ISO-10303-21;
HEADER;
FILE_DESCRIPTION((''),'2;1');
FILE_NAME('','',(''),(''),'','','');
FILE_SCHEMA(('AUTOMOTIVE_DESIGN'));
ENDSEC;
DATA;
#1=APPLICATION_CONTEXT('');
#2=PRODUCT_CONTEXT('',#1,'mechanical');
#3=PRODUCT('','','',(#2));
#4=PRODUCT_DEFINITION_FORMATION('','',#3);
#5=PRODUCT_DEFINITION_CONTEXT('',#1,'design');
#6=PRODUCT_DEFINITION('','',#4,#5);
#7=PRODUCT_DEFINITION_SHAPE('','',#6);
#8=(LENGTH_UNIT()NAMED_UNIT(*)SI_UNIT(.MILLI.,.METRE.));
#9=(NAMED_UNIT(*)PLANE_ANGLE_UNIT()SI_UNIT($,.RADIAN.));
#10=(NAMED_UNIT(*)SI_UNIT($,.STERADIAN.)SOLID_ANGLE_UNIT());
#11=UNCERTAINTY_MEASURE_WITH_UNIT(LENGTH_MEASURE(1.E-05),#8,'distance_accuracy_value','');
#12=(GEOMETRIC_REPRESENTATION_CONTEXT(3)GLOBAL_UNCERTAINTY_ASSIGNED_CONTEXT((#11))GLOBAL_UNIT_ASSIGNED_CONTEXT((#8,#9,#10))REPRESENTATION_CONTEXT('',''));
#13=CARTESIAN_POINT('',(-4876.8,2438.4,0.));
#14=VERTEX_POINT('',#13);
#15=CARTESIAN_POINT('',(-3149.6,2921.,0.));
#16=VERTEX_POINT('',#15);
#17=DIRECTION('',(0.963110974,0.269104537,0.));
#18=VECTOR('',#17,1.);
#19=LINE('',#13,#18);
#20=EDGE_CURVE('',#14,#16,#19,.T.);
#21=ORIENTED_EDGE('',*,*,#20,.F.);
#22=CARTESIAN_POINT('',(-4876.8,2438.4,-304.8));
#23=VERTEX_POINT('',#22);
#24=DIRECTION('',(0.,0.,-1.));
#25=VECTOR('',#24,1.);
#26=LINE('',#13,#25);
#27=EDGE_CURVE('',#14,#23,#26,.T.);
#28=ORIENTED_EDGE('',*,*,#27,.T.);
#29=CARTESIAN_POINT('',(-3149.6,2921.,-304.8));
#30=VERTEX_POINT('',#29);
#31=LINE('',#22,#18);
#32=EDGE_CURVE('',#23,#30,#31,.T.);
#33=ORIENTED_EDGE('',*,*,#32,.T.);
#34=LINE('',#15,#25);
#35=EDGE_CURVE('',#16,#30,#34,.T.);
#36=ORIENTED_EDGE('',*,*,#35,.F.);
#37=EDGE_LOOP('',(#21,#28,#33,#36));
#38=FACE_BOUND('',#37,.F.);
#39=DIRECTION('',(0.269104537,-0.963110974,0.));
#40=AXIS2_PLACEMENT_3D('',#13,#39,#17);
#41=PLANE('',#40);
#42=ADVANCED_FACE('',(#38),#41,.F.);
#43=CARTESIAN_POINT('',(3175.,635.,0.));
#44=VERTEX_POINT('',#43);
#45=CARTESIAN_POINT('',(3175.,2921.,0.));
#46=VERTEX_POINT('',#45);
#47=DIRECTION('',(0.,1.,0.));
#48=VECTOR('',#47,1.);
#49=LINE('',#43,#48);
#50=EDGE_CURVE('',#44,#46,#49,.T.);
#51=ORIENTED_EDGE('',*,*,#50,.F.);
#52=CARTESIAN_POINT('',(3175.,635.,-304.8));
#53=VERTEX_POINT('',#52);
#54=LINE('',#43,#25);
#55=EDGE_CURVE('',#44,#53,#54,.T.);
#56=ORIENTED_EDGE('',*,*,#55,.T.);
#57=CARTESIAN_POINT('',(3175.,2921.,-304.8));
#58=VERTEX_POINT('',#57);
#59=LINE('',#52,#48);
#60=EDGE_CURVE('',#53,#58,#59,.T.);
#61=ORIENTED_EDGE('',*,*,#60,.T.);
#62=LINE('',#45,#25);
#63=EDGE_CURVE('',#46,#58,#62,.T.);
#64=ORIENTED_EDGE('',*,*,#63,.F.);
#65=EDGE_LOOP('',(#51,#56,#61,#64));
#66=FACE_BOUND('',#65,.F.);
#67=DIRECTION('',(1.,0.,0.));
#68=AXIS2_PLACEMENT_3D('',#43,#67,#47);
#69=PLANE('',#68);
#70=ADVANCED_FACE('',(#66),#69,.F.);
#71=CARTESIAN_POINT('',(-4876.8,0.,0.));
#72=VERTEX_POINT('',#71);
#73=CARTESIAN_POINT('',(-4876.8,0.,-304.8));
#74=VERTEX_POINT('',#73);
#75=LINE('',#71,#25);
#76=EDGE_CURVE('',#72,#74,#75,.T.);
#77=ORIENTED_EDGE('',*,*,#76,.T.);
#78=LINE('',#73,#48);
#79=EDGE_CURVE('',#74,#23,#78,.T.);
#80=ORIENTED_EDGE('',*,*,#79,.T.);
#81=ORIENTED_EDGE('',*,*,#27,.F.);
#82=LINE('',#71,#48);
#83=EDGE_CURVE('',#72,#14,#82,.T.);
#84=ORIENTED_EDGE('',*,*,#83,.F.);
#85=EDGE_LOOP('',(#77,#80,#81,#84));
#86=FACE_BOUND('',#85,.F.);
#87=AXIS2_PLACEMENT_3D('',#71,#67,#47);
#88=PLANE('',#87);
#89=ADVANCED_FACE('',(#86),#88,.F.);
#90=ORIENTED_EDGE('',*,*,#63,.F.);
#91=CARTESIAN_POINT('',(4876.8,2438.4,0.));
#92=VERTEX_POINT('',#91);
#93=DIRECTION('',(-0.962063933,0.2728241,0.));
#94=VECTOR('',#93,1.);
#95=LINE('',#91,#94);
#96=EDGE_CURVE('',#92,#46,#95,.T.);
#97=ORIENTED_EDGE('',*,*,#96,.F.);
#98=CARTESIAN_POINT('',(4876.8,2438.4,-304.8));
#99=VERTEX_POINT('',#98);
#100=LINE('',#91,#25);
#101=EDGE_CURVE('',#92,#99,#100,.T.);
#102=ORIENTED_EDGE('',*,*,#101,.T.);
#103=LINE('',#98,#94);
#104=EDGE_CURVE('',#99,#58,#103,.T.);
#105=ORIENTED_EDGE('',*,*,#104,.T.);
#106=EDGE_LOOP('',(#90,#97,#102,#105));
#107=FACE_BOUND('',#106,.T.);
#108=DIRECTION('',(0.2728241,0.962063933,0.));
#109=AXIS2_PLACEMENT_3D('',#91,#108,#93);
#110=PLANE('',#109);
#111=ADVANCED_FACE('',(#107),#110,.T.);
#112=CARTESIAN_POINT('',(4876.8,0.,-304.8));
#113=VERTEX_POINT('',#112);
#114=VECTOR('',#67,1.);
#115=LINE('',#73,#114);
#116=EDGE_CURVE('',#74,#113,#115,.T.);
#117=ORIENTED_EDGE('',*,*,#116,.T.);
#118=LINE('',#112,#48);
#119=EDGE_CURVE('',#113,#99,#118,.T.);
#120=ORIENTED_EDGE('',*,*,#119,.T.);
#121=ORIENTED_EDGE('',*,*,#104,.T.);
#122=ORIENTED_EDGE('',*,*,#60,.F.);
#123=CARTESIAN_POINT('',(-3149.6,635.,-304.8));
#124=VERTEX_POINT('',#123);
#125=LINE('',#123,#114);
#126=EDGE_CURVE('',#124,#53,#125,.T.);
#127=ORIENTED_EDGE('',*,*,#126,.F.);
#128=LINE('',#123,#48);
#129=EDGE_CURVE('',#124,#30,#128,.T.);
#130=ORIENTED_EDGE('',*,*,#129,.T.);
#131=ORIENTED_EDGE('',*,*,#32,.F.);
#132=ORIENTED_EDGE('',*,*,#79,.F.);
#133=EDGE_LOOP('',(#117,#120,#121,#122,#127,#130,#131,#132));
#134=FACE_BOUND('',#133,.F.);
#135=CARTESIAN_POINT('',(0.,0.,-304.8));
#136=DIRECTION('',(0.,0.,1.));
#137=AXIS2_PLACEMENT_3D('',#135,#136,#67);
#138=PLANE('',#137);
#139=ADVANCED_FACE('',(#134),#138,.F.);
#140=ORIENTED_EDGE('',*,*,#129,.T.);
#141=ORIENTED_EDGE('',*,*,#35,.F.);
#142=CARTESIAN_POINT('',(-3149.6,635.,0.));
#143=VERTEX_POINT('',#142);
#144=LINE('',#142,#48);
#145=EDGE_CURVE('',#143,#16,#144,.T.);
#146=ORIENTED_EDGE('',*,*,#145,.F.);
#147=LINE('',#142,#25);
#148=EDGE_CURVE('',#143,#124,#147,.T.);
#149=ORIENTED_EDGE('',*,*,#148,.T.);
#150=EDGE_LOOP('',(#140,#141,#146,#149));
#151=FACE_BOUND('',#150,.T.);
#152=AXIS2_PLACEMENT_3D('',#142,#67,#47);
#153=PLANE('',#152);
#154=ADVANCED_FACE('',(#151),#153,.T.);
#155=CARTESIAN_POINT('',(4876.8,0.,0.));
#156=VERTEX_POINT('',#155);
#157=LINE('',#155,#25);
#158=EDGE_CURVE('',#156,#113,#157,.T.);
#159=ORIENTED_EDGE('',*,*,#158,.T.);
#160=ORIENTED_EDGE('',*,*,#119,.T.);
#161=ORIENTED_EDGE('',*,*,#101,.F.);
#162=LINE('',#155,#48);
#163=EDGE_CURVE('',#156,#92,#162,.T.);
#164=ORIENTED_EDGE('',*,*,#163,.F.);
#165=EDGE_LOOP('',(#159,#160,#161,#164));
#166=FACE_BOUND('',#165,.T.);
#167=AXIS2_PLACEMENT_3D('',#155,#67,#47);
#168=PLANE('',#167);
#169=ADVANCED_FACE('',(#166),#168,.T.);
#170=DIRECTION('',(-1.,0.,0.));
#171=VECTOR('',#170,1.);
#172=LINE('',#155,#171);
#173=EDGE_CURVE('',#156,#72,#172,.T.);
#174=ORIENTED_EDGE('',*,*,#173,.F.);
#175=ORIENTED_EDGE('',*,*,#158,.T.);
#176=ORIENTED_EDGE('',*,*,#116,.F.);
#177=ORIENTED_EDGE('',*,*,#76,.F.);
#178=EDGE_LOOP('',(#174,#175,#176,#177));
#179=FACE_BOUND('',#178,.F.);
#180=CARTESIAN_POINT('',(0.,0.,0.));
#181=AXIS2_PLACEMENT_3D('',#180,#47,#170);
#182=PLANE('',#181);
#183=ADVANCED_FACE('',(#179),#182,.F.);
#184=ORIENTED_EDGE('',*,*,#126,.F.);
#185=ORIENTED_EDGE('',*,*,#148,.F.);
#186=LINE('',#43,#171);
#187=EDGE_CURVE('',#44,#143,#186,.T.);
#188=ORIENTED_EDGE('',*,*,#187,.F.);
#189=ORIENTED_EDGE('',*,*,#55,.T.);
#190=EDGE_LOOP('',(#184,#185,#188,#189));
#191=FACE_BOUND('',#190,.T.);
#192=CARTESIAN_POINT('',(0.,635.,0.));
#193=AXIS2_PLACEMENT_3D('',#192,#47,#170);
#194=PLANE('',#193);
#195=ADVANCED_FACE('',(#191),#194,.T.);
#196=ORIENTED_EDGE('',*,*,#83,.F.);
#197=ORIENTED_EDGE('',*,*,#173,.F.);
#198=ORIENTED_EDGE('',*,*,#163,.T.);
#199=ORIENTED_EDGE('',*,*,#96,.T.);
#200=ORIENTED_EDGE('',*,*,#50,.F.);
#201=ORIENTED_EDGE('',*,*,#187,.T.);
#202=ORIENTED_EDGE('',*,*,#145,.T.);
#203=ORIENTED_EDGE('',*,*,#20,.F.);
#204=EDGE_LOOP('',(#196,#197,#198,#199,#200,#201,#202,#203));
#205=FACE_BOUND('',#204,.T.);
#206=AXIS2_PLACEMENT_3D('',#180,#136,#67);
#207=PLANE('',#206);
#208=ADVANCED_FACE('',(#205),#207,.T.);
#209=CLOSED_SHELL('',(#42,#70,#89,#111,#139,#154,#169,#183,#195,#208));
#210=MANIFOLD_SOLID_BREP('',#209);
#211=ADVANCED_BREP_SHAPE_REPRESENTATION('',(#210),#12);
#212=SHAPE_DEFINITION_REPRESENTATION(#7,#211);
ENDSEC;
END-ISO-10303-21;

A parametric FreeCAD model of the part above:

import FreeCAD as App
import Part
import Sketcher
Q = App.Units.Quantity

doc = App.newDocument("Part")
body = doc.addObject("PartDesign::Body", "Body")

sketch1 = body.newObject("Sketcher::SketchObject", "Sketch")
sketch1.AttachmentSupport = (doc.getObject("XY_Plane"), [""])
sketch1.MapMode = "FlatFace"
sketch1.addGeometry(Part.LineSegment(App.Vector(-4877, 0, 0), App.Vector(4877, 0, 0)), False)
sketch1.addGeometry(Part.LineSegment(App.Vector(4877, 0, 0), App.Vector(4877, 2438, 0)), False)
sketch1.addGeometry(Part.LineSegment(App.Vector(4877, 2438, 0), App.Vector(3175, 2921, 0)), False)
sketch1.addGeometry(Part.LineSegment(App.Vector(3175, 2921, 0), App.Vector(3175, 635, 0)), False)
sketch1.addGeometry(Part.LineSegment(App.Vector(3175, 635, 0), App.Vector(-3150, 635, 0)), False)
sketch1.addGeometry(Part.LineSegment(App.Vector(-3150, 635, 0), App.Vector(-3150, 2921, 0)), False)
sketch1.addGeometry(Part.LineSegment(App.Vector(-3150, 2921, 0), App.Vector(-4877, 2438, 0)), False)
sketch1.addGeometry(Part.LineSegment(App.Vector(-4877, 2438, 0), App.Vector(-4877, 0, 0)), False)
sketch1.addConstraint(Sketcher.Constraint("Coincident", 0, 2, 1, 1))
sketch1.addConstraint(Sketcher.Constraint("Coincident", 1, 2, 2, 1))
sketch1.addConstraint(Sketcher.Constraint("Coincident", 2, 2, 3, 1))
sketch1.addConstraint(Sketcher.Constraint("Coincident", 3, 2, 4, 1))
sketch1.addConstraint(Sketcher.Constraint("Coincident", 4, 2, 5, 1))
sketch1.addConstraint(Sketcher.Constraint("Coincident", 5, 2, 6, 1))
sketch1.addConstraint(Sketcher.Constraint("Coincident", 6, 2, 7, 1))
sketch1.addConstraint(Sketcher.Constraint("Coincident", 7, 2, 0, 1))
sketch1.addConstraint(Sketcher.Constraint("Horizontal", 0))
sketch1.addConstraint(Sketcher.Constraint("Vertical", 1))
sketch1.addConstraint(Sketcher.Constraint("Vertical", 3))
sketch1.addConstraint(Sketcher.Constraint("Horizontal", 4))
sketch1.addConstraint(Sketcher.Constraint("Vertical", 5))
sketch1.addConstraint(Sketcher.Constraint("Vertical", 7))
sketch1.addConstraint(Sketcher.Constraint("Symmetric", 0, 2, 7, 2, -1, 1))
sketch1.addConstraint(Sketcher.Constraint("Horizontal", 2, 2, 5, 2))
sketch1.addConstraint(Sketcher.Constraint("Horizontal", 1, 2, 6, 2))
sketch1.addConstraint(Sketcher.Constraint("DistanceX", 0, 1, 0, 2, Q("384 in")))
sketch1.addConstraint(Sketcher.Constraint("DistanceX", 4, 2, 4, 1, Q("249 in")))
sketch1.addConstraint(Sketcher.Constraint("DistanceY", 1, 1, 1, 2, Q("96 in")))
sketch1.addConstraint(Sketcher.Constraint("DistanceY", 3, 2, 3, 1, Q("90 in")))
sketch1.addConstraint(Sketcher.Constraint("DistanceX", -1, 1, 2, 2, Q("125 in")))
sketch1.addConstraint(Sketcher.Constraint("DistanceY", -1, 1, 2, 2, Q("115 in")))
pad1 = body.newObject("PartDesign::Pad", "Pad")
pad1.Profile = sketch1
pad1.Length = Q("12 in")
pad1.Reversed = True

doc.recompute()
